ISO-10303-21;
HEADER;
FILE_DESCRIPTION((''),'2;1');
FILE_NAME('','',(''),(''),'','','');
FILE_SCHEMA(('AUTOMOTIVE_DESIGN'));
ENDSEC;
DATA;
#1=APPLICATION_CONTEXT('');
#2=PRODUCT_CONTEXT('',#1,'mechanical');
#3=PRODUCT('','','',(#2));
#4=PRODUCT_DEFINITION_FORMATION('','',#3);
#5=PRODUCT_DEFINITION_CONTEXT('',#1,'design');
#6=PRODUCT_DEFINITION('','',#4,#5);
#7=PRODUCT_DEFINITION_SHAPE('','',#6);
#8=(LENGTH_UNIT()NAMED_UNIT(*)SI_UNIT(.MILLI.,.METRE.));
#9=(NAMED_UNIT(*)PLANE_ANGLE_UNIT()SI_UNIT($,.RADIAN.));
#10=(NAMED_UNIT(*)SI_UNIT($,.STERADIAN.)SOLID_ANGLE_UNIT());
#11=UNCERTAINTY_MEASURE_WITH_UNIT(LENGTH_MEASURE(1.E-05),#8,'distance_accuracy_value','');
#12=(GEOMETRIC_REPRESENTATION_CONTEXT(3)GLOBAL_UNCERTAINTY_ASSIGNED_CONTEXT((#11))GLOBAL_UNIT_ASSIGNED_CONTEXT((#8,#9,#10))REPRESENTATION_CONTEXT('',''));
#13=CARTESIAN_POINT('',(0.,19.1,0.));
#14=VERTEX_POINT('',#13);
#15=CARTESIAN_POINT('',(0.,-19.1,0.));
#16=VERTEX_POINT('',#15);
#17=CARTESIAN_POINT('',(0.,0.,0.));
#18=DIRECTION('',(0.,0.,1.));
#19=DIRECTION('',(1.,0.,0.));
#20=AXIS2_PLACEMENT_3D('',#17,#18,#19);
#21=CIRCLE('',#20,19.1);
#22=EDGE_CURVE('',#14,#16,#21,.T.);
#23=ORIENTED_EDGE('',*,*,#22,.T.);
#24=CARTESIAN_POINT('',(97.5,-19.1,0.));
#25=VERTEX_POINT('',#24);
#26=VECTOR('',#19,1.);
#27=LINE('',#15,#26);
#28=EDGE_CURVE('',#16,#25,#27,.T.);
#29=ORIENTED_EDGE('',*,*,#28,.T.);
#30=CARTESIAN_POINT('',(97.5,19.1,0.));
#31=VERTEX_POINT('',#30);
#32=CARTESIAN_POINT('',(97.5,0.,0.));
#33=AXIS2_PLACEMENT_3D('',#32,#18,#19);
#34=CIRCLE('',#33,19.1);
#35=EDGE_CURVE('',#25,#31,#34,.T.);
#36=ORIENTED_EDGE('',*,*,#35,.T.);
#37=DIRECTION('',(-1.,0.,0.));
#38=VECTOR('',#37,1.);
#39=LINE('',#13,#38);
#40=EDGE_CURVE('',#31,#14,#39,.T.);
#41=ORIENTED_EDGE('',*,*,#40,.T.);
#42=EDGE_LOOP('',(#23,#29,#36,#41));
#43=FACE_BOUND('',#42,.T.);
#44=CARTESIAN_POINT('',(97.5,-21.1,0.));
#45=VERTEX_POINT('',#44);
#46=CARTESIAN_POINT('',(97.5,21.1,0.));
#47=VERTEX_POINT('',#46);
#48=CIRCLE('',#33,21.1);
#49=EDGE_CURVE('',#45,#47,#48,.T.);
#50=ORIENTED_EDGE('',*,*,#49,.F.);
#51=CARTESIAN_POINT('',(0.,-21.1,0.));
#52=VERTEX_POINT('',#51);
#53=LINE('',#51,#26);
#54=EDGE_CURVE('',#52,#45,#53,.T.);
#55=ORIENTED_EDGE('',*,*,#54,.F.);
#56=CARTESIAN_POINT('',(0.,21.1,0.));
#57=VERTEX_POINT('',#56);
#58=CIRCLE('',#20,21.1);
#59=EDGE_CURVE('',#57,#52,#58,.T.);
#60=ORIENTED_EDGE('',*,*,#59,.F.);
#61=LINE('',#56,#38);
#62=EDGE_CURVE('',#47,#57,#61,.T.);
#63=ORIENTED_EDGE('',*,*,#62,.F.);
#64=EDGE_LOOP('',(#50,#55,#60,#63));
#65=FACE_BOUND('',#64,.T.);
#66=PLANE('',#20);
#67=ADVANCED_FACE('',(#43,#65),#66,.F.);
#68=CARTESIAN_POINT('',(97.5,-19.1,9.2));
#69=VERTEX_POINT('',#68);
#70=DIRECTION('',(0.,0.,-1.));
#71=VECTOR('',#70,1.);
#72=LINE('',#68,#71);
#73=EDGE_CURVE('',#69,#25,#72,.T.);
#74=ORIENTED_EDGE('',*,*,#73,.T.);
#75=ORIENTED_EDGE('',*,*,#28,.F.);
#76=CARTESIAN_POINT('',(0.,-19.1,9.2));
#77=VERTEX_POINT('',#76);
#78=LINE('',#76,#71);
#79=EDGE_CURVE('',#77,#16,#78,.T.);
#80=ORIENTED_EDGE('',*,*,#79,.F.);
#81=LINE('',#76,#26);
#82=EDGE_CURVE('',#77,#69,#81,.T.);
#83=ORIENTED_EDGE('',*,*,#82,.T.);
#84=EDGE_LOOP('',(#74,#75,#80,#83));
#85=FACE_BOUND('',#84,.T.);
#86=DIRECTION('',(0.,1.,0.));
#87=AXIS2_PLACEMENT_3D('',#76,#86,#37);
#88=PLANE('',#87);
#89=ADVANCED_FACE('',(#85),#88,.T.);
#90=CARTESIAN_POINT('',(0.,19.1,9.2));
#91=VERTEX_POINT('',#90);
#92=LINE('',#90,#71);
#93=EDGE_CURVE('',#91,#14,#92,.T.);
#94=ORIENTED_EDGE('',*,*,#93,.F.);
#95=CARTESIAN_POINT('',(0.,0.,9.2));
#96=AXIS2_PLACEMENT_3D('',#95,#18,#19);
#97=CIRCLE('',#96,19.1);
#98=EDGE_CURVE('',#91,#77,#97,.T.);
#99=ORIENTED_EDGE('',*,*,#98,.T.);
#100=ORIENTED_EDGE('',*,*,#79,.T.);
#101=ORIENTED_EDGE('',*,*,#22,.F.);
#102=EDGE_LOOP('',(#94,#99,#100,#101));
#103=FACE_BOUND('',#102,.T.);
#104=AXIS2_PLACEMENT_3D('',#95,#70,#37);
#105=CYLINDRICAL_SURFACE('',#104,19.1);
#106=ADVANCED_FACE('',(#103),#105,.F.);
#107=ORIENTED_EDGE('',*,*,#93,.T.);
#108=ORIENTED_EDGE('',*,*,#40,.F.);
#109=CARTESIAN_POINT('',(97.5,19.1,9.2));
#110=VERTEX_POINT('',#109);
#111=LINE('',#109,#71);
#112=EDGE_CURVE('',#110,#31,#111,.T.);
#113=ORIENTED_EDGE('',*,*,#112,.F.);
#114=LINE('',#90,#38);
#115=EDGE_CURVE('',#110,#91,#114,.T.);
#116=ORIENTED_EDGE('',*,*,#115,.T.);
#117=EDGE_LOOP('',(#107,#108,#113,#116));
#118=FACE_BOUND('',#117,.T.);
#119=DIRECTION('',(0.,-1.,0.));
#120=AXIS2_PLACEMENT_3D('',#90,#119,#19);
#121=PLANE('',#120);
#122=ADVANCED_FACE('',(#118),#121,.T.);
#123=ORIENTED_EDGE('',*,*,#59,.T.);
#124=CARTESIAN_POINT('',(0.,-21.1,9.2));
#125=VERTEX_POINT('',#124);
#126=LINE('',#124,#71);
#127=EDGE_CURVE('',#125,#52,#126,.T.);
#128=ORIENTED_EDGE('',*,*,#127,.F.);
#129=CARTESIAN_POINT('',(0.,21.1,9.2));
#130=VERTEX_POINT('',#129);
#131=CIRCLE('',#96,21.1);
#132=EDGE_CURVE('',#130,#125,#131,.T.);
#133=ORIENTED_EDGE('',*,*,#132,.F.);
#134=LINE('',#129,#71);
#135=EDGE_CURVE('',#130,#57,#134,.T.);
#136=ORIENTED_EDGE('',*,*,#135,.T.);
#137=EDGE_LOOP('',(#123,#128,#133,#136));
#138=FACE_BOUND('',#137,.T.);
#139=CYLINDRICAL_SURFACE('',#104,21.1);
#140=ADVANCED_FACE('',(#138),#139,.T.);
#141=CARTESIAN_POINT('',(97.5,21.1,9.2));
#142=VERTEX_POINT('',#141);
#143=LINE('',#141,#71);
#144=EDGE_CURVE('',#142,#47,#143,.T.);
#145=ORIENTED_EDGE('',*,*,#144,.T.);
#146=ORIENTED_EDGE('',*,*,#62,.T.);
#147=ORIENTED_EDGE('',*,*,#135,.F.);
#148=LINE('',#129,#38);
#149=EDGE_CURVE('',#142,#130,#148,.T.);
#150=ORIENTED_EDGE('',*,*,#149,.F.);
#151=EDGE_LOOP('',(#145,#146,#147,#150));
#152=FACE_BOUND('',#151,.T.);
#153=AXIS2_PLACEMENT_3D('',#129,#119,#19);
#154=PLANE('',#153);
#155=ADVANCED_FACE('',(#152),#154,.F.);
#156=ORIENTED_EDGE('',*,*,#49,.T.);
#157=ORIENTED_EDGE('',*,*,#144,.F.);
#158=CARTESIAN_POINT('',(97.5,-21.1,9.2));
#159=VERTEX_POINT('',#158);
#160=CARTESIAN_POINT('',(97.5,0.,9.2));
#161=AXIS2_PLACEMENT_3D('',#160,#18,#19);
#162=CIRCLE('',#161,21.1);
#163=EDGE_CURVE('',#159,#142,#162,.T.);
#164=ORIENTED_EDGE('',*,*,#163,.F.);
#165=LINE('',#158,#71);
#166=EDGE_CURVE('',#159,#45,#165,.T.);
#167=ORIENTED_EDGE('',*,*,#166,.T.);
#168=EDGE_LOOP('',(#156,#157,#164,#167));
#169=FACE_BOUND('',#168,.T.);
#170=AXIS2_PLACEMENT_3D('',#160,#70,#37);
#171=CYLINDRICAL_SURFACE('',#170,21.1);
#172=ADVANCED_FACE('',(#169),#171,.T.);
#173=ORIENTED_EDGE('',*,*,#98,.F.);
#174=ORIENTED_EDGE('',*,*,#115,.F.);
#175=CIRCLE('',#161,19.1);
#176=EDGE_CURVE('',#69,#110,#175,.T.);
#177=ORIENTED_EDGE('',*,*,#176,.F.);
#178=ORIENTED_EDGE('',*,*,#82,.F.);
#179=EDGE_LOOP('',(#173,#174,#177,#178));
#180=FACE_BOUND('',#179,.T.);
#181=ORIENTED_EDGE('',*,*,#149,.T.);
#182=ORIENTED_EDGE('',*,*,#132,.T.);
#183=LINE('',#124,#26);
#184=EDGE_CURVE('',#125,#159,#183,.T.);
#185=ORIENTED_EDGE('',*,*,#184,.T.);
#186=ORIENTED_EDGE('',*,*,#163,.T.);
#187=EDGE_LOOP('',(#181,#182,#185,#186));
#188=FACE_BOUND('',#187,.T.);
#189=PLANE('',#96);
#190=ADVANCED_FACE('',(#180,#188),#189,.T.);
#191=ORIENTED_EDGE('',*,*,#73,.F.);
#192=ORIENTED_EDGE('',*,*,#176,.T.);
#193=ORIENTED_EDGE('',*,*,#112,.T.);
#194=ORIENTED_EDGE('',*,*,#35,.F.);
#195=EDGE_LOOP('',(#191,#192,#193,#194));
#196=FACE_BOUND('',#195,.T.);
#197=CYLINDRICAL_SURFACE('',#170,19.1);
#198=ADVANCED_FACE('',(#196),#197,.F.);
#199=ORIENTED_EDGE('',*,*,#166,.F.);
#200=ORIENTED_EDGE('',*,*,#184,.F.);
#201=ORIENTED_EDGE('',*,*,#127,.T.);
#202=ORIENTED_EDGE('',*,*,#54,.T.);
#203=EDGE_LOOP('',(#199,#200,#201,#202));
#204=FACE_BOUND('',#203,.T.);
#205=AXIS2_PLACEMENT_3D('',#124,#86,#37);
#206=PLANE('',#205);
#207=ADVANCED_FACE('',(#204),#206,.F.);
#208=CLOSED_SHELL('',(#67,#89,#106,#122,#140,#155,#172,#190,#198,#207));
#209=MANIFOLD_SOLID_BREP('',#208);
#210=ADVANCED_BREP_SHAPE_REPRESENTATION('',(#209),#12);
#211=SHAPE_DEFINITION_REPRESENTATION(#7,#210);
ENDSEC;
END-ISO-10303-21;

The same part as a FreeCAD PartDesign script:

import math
import FreeCAD as App
import Part
import Sketcher

doc = App.newDocument("Part")
body = doc.addObject("PartDesign::Body", "Body")

# Sketch on XY plane
sketch1 = body.newObject("Sketcher::SketchObject", "Sketch")
sketch1.AttachmentSupport = (doc.getObject("XY_Plane"), [""])
sketch1.MapMode = "FlatFace"
sketch1.addGeometry(Part.LineSegment(App.Vector(98, 21, 0), App.Vector(0, 21, 0)), False)
sketch1.addGeometry(Part.ArcOfCircle(Part.Circle(App.Vector(0, 0, 0), App.Vector(0, 0, 1), 21), math.radians(90), math.radians(270)), False)
sketch1.addGeometry(Part.LineSegment(App.Vector(0, -21, 0), App.Vector(98, -21, 0)), False)
sketch1.addGeometry(Part.ArcOfCircle(Part.Circle(App.Vector(98, 0, 0), App.Vector(0, 0, 1), 21), math.radians(-90), math.radians(90)), False)
sketch1.addGeometry(Part.LineSegment(App.Vector(0, 19, 0), App.Vector(98, 19, 0)), False)
sketch1.addGeometry(Part.ArcOfCircle(Part.Circle(App.Vector(98, 0, 0), App.Vector(0, 0, 1), 19), math.radians(-90), math.radians(90)), False)
sketch1.addGeometry(Part.LineSegment(App.Vector(98, -19, 0), App.Vector(0, -19, 0)), False)
sketch1.addGeometry(Part.ArcOfCircle(Part.Circle(App.Vector(0, 0, 0), App.Vector(0, 0, 1), 19), math.radians(90), math.radians(270)), False)
sketch1.addConstraint(Sketcher.Constraint("Tangent", 0, 2, 1, 1))
sketch1.addConstraint(Sketcher.Constraint("Tangent", 1, 2, 2, 1))
sketch1.addConstraint(Sketcher.Constraint("Tangent", 2, 2, 3, 1))
sketch1.addConstraint(Sketcher.Constraint("Tangent", 3, 2, 0, 1))
sketch1.addConstraint(Sketcher.Constraint("Tangent", 4, 2, 5, 2))
sketch1.addConstraint(Sketcher.Constraint("Tangent", 5, 1, 6, 1))
sketch1.addConstraint(Sketcher.Constraint("Tangent", 6, 2, 7, 2))
sketch1.addConstraint(Sketcher.Constraint("Tangent", 7, 1, 4, 1))
sketch1.addConstraint(Sketcher.Constraint("Horizontal", 0))
sketch1.addConstraint(Sketcher.Constraint("Horizontal", 2))
sketch1.addConstraint(Sketcher.Constraint("Horizontal", 4))
sketch1.addConstraint(Sketcher.Constraint("Horizontal", 6))
sketch1.addConstraint(Sketcher.Constraint("Coincident", 1, 3, -1, 1))
sketch1.addConstraint(Sketcher.Constraint("Coincident", 7, 3, -1, 1))
sketch1.addConstraint(Sketcher.Constraint("Vertical", 5, 3, 2, 2))
sketch1.addConstraint(Sketcher.Constraint("Radius", 1, 21.1))
sketch1.addConstraint(Sketcher.Constraint("Radius", 5, 19.1))
sketch1.addConstraint(Sketcher.Constraint("DistanceX", 0, 2, 0, 1, 97.5))
pad1 = body.newObject("PartDesign::Pad", "Pad")
pad1.Profile = sketch1
pad1.Length = 9.2

doc.recompute()
